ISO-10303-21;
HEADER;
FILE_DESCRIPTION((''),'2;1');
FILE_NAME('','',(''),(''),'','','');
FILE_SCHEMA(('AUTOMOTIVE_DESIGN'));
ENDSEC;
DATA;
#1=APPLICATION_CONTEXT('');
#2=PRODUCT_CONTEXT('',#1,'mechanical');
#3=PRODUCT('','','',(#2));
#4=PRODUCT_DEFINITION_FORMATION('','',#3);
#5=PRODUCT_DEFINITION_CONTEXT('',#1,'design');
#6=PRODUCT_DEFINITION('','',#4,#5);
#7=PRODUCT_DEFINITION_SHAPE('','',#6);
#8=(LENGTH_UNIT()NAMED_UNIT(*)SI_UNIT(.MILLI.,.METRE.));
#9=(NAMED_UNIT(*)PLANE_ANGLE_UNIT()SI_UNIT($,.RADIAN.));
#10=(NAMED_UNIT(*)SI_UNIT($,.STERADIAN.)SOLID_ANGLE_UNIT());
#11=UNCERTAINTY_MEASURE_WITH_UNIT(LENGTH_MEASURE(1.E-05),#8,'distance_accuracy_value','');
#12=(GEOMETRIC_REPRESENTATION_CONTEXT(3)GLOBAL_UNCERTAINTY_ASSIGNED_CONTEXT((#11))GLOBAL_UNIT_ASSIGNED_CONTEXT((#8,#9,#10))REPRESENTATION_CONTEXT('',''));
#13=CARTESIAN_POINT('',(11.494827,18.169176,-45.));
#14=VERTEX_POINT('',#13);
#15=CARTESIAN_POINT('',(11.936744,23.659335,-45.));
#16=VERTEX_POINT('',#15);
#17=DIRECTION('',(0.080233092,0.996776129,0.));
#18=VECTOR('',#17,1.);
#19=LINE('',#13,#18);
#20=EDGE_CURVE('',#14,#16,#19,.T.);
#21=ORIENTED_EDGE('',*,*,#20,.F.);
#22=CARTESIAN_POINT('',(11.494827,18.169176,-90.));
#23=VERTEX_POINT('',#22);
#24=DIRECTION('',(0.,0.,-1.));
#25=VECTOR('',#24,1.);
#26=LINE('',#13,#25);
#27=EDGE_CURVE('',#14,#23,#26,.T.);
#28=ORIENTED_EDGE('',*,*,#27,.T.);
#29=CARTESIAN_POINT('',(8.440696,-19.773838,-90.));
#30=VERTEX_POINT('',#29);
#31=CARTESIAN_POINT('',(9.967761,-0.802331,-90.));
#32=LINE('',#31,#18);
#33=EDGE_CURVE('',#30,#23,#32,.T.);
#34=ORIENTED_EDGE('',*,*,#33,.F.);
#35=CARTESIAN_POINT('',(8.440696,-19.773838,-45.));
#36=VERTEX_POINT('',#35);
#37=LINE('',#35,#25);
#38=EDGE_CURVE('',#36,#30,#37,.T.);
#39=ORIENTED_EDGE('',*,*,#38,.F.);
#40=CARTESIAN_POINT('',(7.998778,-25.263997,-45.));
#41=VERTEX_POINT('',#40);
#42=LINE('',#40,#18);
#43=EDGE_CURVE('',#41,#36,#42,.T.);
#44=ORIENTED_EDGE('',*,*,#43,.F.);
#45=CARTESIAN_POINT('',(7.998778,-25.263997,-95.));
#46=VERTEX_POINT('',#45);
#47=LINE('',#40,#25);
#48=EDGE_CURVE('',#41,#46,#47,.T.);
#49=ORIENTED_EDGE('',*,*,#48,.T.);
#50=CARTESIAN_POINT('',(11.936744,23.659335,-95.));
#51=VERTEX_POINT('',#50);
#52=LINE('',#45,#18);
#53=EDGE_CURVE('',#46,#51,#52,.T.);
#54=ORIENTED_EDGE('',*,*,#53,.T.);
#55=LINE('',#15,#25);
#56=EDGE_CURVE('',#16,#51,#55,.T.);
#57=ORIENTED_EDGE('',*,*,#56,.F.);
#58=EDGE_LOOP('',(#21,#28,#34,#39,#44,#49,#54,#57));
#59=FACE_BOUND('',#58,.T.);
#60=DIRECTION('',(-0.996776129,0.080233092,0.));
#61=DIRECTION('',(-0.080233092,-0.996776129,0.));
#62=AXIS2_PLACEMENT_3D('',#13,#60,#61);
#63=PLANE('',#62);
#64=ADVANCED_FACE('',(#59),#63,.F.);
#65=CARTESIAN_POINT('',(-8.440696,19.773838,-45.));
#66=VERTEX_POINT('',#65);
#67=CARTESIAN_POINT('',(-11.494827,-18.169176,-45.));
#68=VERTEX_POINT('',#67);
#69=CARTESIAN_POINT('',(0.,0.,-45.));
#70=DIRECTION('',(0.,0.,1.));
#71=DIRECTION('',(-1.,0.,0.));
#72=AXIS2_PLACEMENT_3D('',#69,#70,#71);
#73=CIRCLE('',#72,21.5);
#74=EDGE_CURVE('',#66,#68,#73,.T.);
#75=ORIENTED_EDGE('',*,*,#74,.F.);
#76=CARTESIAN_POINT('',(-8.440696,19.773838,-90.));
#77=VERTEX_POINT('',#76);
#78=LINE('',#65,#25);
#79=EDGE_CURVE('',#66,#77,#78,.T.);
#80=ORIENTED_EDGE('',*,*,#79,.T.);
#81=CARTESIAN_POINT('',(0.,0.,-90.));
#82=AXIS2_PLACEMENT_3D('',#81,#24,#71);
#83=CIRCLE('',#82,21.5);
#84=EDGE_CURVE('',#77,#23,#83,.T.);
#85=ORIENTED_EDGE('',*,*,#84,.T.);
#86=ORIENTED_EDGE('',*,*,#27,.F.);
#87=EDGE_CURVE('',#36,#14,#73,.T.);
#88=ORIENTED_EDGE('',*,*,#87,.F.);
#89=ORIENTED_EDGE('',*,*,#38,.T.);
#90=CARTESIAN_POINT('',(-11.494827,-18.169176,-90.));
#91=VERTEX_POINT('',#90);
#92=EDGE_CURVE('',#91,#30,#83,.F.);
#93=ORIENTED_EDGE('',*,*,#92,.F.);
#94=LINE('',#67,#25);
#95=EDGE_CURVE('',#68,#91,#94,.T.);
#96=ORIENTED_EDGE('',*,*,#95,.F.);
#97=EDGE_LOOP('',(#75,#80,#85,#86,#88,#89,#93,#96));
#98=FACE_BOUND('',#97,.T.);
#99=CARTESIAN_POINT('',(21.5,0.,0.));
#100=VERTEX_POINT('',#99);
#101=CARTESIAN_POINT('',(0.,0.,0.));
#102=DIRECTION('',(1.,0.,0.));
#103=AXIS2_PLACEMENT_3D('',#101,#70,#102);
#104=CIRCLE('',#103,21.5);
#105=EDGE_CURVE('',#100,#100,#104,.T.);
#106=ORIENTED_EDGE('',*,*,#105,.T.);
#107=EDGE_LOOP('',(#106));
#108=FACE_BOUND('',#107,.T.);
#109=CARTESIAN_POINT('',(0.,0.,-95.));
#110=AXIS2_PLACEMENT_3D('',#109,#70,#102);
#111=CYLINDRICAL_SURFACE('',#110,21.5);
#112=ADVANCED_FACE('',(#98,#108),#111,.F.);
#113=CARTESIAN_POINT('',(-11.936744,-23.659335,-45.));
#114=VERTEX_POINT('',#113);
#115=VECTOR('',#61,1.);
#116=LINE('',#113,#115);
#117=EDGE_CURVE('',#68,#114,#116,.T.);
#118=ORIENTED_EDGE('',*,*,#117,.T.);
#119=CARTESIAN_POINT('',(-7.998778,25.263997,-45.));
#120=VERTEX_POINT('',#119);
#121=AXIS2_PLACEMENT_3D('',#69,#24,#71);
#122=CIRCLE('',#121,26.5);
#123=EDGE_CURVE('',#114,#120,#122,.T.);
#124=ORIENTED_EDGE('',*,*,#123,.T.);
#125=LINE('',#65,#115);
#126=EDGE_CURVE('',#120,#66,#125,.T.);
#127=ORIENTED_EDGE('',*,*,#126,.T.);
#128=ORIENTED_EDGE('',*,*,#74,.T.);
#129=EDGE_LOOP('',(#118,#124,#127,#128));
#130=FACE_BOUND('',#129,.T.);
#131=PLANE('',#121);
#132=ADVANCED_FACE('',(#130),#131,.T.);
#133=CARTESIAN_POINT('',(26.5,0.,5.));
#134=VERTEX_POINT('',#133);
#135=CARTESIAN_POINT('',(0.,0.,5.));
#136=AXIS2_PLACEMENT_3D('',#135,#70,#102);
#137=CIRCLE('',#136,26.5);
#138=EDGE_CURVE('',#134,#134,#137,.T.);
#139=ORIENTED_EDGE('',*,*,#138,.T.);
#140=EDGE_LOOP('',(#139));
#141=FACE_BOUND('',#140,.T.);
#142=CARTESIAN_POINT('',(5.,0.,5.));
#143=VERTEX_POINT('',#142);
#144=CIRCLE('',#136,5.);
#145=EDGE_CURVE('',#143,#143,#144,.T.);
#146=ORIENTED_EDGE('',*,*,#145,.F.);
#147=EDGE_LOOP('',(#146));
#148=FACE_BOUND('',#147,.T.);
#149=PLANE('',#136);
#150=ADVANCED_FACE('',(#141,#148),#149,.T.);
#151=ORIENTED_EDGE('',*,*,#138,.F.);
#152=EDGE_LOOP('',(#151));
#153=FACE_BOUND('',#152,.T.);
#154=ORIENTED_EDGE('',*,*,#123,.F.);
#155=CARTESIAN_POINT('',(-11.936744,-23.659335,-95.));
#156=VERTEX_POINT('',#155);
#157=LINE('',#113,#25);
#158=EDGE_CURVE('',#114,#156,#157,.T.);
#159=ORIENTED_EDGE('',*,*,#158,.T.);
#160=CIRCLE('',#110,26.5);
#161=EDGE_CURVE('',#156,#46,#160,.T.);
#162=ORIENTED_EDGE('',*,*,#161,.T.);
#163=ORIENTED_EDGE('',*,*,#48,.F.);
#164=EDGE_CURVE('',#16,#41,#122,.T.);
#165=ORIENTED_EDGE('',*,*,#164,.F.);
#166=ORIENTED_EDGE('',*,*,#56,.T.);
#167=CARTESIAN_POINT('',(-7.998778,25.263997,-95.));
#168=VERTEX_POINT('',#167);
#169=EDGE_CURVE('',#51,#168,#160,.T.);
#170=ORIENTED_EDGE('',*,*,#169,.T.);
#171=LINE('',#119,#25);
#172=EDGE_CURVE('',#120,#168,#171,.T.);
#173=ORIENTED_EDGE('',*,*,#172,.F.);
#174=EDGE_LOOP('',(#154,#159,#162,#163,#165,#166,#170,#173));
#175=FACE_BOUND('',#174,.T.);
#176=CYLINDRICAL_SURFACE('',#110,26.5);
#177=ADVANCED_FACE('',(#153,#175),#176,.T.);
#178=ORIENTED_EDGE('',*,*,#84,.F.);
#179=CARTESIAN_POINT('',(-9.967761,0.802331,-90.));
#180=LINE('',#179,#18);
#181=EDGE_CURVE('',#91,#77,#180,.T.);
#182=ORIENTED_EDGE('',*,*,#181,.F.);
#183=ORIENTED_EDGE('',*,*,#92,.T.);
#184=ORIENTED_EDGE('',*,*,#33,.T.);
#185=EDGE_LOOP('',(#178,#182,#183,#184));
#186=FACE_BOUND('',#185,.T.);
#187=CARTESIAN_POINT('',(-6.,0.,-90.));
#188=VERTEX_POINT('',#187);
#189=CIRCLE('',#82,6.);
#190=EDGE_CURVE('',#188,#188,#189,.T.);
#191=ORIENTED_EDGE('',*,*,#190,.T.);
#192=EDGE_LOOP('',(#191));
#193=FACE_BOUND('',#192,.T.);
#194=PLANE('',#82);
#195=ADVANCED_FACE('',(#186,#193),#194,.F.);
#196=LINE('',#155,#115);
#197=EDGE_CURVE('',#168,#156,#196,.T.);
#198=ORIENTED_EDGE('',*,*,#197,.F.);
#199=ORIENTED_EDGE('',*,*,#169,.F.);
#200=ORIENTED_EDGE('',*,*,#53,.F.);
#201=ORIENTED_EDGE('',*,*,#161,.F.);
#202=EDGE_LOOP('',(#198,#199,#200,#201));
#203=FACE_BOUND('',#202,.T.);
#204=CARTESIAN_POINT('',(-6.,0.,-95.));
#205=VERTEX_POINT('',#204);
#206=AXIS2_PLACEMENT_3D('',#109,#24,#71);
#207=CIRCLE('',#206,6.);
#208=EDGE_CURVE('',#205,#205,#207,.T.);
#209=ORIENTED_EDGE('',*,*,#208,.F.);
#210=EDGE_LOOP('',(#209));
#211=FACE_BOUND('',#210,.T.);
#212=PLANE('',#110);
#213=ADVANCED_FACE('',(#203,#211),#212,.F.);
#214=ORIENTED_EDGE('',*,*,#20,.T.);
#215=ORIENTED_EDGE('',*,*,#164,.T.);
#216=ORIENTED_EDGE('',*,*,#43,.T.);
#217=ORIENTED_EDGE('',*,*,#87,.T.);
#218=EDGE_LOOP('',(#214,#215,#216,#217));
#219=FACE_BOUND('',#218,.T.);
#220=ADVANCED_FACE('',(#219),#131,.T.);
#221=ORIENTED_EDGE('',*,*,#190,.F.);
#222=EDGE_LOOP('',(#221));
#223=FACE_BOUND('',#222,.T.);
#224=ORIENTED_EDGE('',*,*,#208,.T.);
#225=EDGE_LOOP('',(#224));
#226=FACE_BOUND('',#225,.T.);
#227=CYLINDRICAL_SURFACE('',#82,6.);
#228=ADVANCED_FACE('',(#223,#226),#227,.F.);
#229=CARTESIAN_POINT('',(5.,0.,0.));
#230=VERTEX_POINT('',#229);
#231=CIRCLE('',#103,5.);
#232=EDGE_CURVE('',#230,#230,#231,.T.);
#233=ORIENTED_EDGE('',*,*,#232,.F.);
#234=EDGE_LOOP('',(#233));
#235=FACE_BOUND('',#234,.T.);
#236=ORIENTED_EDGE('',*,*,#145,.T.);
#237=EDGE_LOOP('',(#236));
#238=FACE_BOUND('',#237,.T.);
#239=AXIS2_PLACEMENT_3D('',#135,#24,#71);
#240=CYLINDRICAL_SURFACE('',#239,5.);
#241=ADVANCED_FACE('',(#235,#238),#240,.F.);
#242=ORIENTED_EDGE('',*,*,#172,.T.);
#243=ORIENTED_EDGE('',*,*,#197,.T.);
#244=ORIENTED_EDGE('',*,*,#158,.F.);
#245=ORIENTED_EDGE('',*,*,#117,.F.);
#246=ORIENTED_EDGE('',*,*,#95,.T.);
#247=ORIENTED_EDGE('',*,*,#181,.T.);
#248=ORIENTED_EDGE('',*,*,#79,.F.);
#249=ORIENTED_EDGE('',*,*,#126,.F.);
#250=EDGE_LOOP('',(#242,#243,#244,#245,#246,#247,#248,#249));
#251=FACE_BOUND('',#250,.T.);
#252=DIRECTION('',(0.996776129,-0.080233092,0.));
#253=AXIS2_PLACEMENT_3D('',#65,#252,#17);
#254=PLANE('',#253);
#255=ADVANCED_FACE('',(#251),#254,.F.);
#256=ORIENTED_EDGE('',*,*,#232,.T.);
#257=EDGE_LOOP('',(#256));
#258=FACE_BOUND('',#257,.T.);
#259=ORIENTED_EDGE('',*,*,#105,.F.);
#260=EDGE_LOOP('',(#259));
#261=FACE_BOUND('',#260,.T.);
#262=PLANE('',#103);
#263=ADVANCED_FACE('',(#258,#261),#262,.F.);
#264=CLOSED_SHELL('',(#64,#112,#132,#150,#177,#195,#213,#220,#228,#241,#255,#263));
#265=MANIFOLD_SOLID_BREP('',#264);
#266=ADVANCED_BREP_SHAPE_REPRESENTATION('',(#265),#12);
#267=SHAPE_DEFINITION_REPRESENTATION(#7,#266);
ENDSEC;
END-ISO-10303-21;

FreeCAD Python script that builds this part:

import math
import FreeCAD as App
import Part
import Sketcher

doc = App.newDocument("Part")
body = doc.addObject("PartDesign::Body", "Body")

# Sketch on XY plane
sketch1 = body.newObject("Sketcher::SketchObject", "Sketch")
sketch1.AttachmentSupport = (doc.getObject("XY_Plane"), [""])
sketch1.MapMode = "FlatFace"
sketch1.addGeometry([
    Part.Circle(App.Vector(0, 0, 0), App.Vector(0, 0, 1), 22),
    Part.Circle(App.Vector(0, 0, 0), App.Vector(0, 0, 1), 5),
], False)
sketch1.addConstraint([
    Sketcher.Constraint("Coincident", 0, 3, -1, 1),
    Sketcher.Constraint("Coincident", 1, 3, -1, 1),
    Sketcher.Constraint("Diameter", 0, 43.0),
    Sketcher.Constraint("Diameter", 1, 10.0),
])
pad1 = body.newObject("PartDesign::Pad", "Pad")
pad1.Profile = sketch1
pad1.Length = 5

# Sketch on XY plane
sketch2 = body.newObject("Sketcher::SketchObject", "Sketch001")
sketch2.AttachmentSupport = (doc.getObject("XY_Plane"), [""])
sketch2.MapMode = "FlatFace"
sketch2.AttachmentOffset = App.Placement(App.Vector(0, 0, -95), App.Rotation())
sketch2.addGeometry([
    Part.Circle(App.Vector(0, 0, 0), App.Vector(0, 0, 1), 26),
    Part.Circle(App.Vector(0, 0, 0), App.Vector(0, 0, 1), 22),
], False)
sketch2.addConstraint([
    Sketcher.Constraint("Coincident", 0, 3, -1, 1),
    Sketcher.Constraint("Coincident", 1, 3, -1, 1),
    Sketcher.Constraint("Diameter", 0, 53.0),
    Sketcher.Constraint("Diameter", 1, 43.0),
])
pad2 = body.newObject("PartDesign::Pad", "Pad001")
pad2.Profile = sketch2
pad2.Length = 100

# Sketch on XY plane
sketch3 = body.newObject("Sketcher::SketchObject", "Sketch002")
sketch3.AttachmentSupport = (doc.getObject("XY_Plane"), [""])
sketch3.MapMode = "FlatFace"
sketch3.AttachmentOffset = App.Placement(App.Vector(0, 0, -95), App.Rotation())
sketch3.addGeometry([
    Part.LineSegment(App.Vector(-11, -18, 0), App.Vector(-12, -24, 0)),  # 0
    Part.ArcOfCircle(Part.Circle(App.Vector(0, 0, 0), App.Vector(0, 0, 1), 26), math.radians(108), math.radians(243)),  # 1
    Part.LineSegment(App.Vector(-8, 25, 0), App.Vector(-8, 20, 0)),  # 2
    Part.ArcOfCircle(Part.Circle(App.Vector(0, 0, 0), App.Vector(0, 0, 1), 21), math.radians(113), math.radians(238)),  # 3
    Part.LineSegment(App.Vector(11, 18, 0), App.Vector(12, 24, 0)),  # 4
    Part.ArcOfCircle(Part.Circle(App.Vector(0, 0, 0), App.Vector(0, 0, 1), 26), math.radians(-72), math.radians(63)),  # 5
    Part.LineSegment(App.Vector(8, -25, 0), App.Vector(8, -20, 0)),  # 6
    Part.ArcOfCircle(Part.Circle(App.Vector(0, 0, 0), App.Vector(0, 0, 1), 21), math.radians(-67), math.radians(58)),  # 7
], False)
sketch3.addConstraint([
    Sketcher.Constraint("Coincident", 0, 2, 1, 2),
    Sketcher.Constraint("Coincident", 1, 1, 2, 1),
    Sketcher.Constraint("Coincident", 2, 2, 3, 1),
    Sketcher.Constraint("Coincident", 3, 2, 0, 1),
    Sketcher.Constraint("Coincident", 4, 2, 5, 2),
    Sketcher.Constraint("Coincident", 5, 1, 6, 1),
    Sketcher.Constraint("Coincident", 6, 2, 7, 1),
    Sketcher.Constraint("Coincident", 7, 2, 4, 1),
    Sketcher.Constraint("Coincident", 1, 3, -1, 1),
    Sketcher.Constraint("Coincident", 3, 3, -1, 1),
    Sketcher.Constraint("Coincident", 5, 3, -1, 1),
    Sketcher.Constraint("Coincident", 7, 3, -1, 1),
    Sketcher.Constraint("Equal", 1, 5),
    Sketcher.Constraint("Equal", 3, 7),
    Sketcher.Constraint("Parallel", 0, 2),
    Sketcher.Constraint("Parallel", 2, 4),
    Sketcher.Constraint("Parallel", 4, 6),
    Sketcher.Constraint("Equal", 0, 2),
    Sketcher.Constraint("Equal", 2, 4),
    Sketcher.Constraint("Equal", 4, 6),
    Sketcher.Constraint("Radius", 1, 26.5),
    Sketcher.Constraint("Radius", 3, 21.5),
    Sketcher.Constraint("DistanceX", 1, 1, -1, 1, 7.998778),
    Sketcher.Constraint("DistanceY", 2, 2, 1, 1, 5.490159),
])
pocket1 = body.newObject("PartDesign::Pocket", "Pocket")
pocket1.Profile = sketch3
pocket1.Length = 50
pocket1.Reversed = True

# Sketch on XY plane
sketch4 = body.newObject("Sketcher::SketchObject", "Sketch003")
sketch4.AttachmentSupport = (doc.getObject("XY_Plane"), [""])
sketch4.MapMode = "FlatFace"
sketch4.AttachmentOffset = App.Placement(App.Vector(0, 0, -95), App.Rotation())
sketch4.addGeometry([
    Part.LineSegment(App.Vector(11, 18, 0), App.Vector(8, -20, 0)),
    Part.ArcOfCircle(Part.Circle(App.Vector(0, 0, 0), App.Vector(0, 0, 1), 21), math.radians(-122), math.radians(-67)),
    Part.LineSegment(App.Vector(-11, -18, 0), App.Vector(-8, 20, 0)),
    Part.ArcOfCircle(Part.Circle(App.Vector(0, 0, 0), App.Vector(0, 0, 1), 21), math.radians(58), math.radians(113)),
], False)
sketch4.addConstraint([
    Sketcher.Constraint("Coincident", 0, 2, 1, 2),
    Sketcher.Constraint("Coincident", 1, 1, 2, 1),
    Sketcher.Constraint("Coincident", 2, 2, 3, 2),
    Sketcher.Constraint("Coincident", 3, 1, 0, 1),
    Sketcher.Constraint("Coincident", 1, 3, -1, 1),
    Sketcher.Constraint("Coincident", 3, 3, -1, 1),
    Sketcher.Constraint("Equal", 1, 3),
    Sketcher.Constraint("Parallel", 0, 2),
    Sketcher.Constraint("Equal", 0, 2),
    Sketcher.Constraint("Radius", 1, 21.5),
    Sketcher.Constraint("DistanceY", 0, 2, 1, 1, 1.604662),
    Sketcher.Constraint("DistanceX", 1, 1, 2, 2, 3.054131),
])
pad3 = body.newObject("PartDesign::Pad", "Pad002")
pad3.Profile = sketch4
pad3.Length = 5

# Sketch on XY plane
sketch5 = body.newObject("Sketcher::SketchObject", "Sketch004")
sketch5.AttachmentSupport = (doc.getObject("XY_Plane"), [""])
sketch5.MapMode = "FlatFace"
sketch5.AttachmentOffset = App.Placement(App.Vector(0, 0, -95), App.Rotation())
sketch5.addGeometry(Part.Circle(App.Vector(0, 0, 0), App.Vector(0, 0, 1), 6), False)
sketch5.addConstraint([
    Sketcher.Constraint("Coincident", 0, 3, -1, 1),
    Sketcher.Constraint("Diameter", 0, 12.0),
])
pocket2 = body.newObject("PartDesign::Pocket", "Pocket001")
pocket2.Profile = sketch5
pocket2.Length = 5
pocket2.Reversed = True

doc.recompute()
